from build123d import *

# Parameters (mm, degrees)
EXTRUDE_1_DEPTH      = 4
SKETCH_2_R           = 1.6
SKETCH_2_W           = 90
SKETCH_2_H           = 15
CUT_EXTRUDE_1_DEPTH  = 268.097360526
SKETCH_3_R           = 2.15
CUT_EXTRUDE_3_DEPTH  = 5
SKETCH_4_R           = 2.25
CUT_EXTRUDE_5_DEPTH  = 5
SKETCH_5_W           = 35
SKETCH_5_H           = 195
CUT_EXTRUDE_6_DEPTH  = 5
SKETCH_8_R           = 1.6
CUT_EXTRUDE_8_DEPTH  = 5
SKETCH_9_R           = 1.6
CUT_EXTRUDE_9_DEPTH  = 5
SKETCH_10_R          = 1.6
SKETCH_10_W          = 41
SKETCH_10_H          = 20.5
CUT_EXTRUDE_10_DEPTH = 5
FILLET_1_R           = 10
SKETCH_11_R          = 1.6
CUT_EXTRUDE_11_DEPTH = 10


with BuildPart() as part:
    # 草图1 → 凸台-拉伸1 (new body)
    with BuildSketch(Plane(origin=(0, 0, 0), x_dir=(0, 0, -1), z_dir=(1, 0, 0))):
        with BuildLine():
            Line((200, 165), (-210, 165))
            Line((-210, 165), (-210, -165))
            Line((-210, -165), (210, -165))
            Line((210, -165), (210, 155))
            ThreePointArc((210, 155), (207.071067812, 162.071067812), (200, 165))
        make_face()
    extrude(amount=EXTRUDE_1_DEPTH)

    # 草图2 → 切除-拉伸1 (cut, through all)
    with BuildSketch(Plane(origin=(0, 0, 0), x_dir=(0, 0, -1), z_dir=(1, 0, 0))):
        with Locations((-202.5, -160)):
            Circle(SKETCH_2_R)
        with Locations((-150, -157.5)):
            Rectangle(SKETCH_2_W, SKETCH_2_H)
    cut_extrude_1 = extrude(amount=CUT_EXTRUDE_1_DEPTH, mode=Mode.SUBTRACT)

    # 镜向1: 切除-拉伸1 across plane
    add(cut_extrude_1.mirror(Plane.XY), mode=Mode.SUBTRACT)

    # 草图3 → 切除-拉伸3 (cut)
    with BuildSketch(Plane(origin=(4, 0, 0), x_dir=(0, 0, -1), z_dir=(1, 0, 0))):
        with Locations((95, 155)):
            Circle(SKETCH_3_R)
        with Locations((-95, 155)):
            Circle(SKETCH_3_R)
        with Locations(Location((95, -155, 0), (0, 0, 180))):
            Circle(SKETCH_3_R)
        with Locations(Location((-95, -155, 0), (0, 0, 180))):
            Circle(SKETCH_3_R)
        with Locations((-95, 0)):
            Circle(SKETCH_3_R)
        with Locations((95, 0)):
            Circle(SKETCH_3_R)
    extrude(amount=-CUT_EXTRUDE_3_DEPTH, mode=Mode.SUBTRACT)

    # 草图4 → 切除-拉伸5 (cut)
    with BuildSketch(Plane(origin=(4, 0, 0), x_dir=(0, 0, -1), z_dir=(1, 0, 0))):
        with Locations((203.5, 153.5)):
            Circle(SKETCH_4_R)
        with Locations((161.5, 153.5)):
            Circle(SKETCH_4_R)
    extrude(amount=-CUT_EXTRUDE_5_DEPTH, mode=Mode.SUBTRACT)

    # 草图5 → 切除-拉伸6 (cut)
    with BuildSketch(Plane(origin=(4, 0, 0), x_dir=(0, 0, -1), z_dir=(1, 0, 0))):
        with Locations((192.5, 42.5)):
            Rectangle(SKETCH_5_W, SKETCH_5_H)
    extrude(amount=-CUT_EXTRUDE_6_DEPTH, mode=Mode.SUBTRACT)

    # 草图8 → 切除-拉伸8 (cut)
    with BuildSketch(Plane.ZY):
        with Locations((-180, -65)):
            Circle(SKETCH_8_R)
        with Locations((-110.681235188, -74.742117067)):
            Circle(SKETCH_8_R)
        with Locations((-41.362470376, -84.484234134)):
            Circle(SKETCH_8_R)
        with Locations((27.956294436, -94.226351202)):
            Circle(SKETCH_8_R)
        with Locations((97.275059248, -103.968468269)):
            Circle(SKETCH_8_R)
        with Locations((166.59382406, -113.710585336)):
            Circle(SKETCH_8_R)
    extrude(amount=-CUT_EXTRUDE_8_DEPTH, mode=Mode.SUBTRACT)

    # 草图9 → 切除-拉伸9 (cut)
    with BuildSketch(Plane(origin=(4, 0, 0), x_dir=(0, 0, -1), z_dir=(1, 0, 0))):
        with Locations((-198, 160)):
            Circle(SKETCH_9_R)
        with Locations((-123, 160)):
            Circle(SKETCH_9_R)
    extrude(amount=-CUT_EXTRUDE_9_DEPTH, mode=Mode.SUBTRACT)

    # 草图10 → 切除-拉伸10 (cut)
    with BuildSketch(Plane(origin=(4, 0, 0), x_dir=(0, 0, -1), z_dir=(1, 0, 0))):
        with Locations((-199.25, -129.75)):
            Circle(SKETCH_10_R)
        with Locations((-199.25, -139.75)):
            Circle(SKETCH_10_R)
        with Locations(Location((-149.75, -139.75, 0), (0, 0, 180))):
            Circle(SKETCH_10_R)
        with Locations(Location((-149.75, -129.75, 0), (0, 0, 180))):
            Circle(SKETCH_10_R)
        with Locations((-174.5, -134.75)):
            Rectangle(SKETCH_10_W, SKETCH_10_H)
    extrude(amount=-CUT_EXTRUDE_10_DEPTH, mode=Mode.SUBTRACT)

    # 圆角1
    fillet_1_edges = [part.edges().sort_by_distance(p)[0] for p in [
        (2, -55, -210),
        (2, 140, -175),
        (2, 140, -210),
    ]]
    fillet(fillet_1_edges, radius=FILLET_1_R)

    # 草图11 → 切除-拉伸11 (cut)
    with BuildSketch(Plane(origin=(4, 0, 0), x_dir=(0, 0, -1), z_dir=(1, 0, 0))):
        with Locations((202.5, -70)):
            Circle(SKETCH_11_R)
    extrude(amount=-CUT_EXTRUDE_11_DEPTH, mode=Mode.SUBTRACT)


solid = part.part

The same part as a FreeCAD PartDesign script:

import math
import FreeCAD as App
import Part
import Sketcher
from FreeCAD import Vector


def edges_at(feature, points):
    """Names of the edges that pass closest to the given points."""
    edges = feature.Shape.Edges
    near = lambda p: min(range(len(edges)), key=lambda i: edges[i].distToShape(Part.Vertex(*p))[0])
    return sorted({f"Edge{near(p) + 1}" for p in points})


def add_polygon(sketch, points):
    """Adds a closed chain of lines whose ends are joined by coincident constraints."""
    first, n = sketch.GeometryCount, len(points)
    for a, b in zip(points, points[1:] + points[:1]):
        sketch.addGeometry(Part.LineSegment(App.Vector(*a, 0), App.Vector(*b, 0)), False)
    for i in range(n):
        sketch.addConstraint(Sketcher.Constraint("Coincident", first + i, 2, first + (i + 1) % n, 1))

doc = App.newDocument("Part")
body = doc.addObject("PartDesign::Body", "Body")

# Sketch on YZ plane
sketch1 = body.newObject("Sketcher::SketchObject", "Sketch")
sketch1.AttachmentSupport = (doc.getObject("YZ_Plane"), [""])
sketch1.MapMode = "FlatFace"
sketch1.addGeometry([
    Part.LineSegment(Vector(165, -200, 0), Vector(165, 210, 0)),  # 0
    Part.LineSegment(Vector(165, 210, 0), Vector(-165, 210, 0)),  # 1
    Part.LineSegment(Vector(-165, 210, 0), Vector(-165, -210, 0)),  # 2
    Part.LineSegment(Vector(-165, -210, 0), Vector(155, -210, 0)),  # 3
    Part.ArcOfCircle(Part.Circle(Vector(155, -200, 0), Vector(0, 0, 1), 10), math.radians(-90), math.radians(0)),  # 4
], False)
sketch1.addConstraint([
    Sketcher.Constraint("Coincident", 0, 2, 1, 1),
    Sketcher.Constraint("Coincident", 1, 2, 2, 1),
    Sketcher.Constraint("Coincident", 2, 2, 3, 1),
    Sketcher.Constraint("Tangent", 3, 2, 4, 1),
    Sketcher.Constraint("Tangent", 4, 2, 0, 1),
    Sketcher.Constraint("Vertical", 0),
    Sketcher.Constraint("Horizontal", 1),
    Sketcher.Constraint("Vertical", 2),
    Sketcher.Constraint("Horizontal", 3),
    Sketcher.Constraint("Symmetric", 0, 2, 2, 2, -1, 1),
    Sketcher.Constraint("Radius", 4, 10.0),
    Sketcher.Constraint("DistanceX", 1, 2, 1, 1, 330.0),
    Sketcher.Constraint("DistanceY", 0, 1, 0, 2, 410.0),
])
pad1 = body.newObject("PartDesign::Pad", "Pad")
pad1.Profile = sketch1
pad1.Length = 4

# Sketch on YZ plane
sketch2 = body.newObject("Sketcher::SketchObject", "Sketch001")
sketch2.AttachmentSupport = (doc.getObject("YZ_Plane"), [""])
sketch2.MapMode = "FlatFace"
sketch2.addGeometry(Part.Circle(Vector(-160, 202.5, 0), Vector(0, 0, 1), 1.6), False)  # 0
add_polygon(sketch2, [(-150, 195), (-165, 195), (-165, 105), (-150, 105)])  # lines 1-4
sketch2.addConstraint([
    Sketcher.Constraint("Horizontal", 1),
    Sketcher.Constraint("Vertical", 2),
    Sketcher.Constraint("Horizontal", 3),
    Sketcher.Constraint("Vertical", 4),
    Sketcher.Constraint("Diameter", 0, 3.2),
    Sketcher.Constraint("DistanceX", 1, 2, 1, 1, 15.0),
    Sketcher.Constraint("DistanceY", 2, 2, 2, 1, 90.0),
    Sketcher.Constraint("DistanceX", 0, 3, -1, 1, 160.0),
    Sketcher.Constraint("DistanceX", 1, 2, -1, 1, 165.0),
    Sketcher.Constraint("DistanceY", -1, 1, 1, 2, 195.0),
    Sketcher.Constraint("DistanceY", -1, 1, 0, 3, 202.5),
])
pocket1 = body.newObject("PartDesign::Pocket", "Pocket")
pocket1.Profile = sketch2
pocket1.Type = "ThroughAll"
pocket1.Reversed = True
doc.recompute()

mirrored = body.newObject("PartDesign::Mirrored", "Mirrored")
mirrored.Originals = [pocket1]
mirrored.MirrorPlane = (doc.getObject("XY_Plane"), [""])
body.Tip = mirrored

# Sketch on YZ plane
sketch3 = body.newObject("Sketcher::SketchObject", "Sketch002")
sketch3.AttachmentSupport = (doc.getObject("YZ_Plane"), [""])
sketch3.MapMode = "FlatFace"
sketch3.AttachmentOffset = App.Placement(Vector(0, 0, 4), App.Rotation())
sketch3.addGeometry([
    Part.Circle(Vector(155, -95, 0), Vector(0, 0, 1), 2.15),  # 0
    Part.Circle(Vector(155, 95, 0), Vector(0, 0, 1), 2.15),  # 1
    Part.Circle(Vector(-155, -95, 0), Vector(0, 0, 1), 2.15),  # 2
    Part.Circle(Vector(-155, 95, 0), Vector(0, 0, 1), 2.15),  # 3
    Part.Circle(Vector(0, 95, 0), Vector(0, 0, 1), 2.15),  # 4
    Part.Circle(Vector(0, -95, 0), Vector(0, 0, 1), 2.15),  # 5
], False)
sketch3.addConstraint([
    Sketcher.Constraint("Equal", 0, 1),
    Sketcher.Constraint("Equal", 1, 2),
    Sketcher.Constraint("Equal", 2, 3),
    Sketcher.Constraint("Equal", 3, 4),
    Sketcher.Constraint("Equal", 4, 5),
    Sketcher.Constraint("Symmetric", 1, 3, 2, 3, -1, 1),
    Sketcher.Constraint("Symmetric", 0, 3, 3, 3, -1, 1),
    Sketcher.Constraint("Symmetric", 4, 3, 5, 3, -1, 1),
    Sketcher.Constraint("Symmetric", 0, 3, 2, 3, -2),
    Sketcher.Constraint("PointOnObject", 4, 3, -2),
    Sketcher.Constraint("Horizontal", 3, 3, 4, 3),
    Sketcher.Constraint("Diameter", 0, 4.3),
    Sketcher.Constraint("DistanceX", -1, 1, 0, 3, 155.0),
    Sketcher.Constraint("DistanceY", 0, 3, -1, 1, 95.0),
])
pocket2 = body.newObject("PartDesign::Pocket", "Pocket001")
pocket2.Profile = sketch3
pocket2.Length = 5

# Sketch on YZ plane
sketch4 = body.newObject("Sketcher::SketchObject", "Sketch003")
sketch4.AttachmentSupport = (doc.getObject("YZ_Plane"), [""])
sketch4.MapMode = "FlatFace"
sketch4.AttachmentOffset = App.Placement(Vector(0, 0, 4), App.Rotation())
sketch4.addGeometry([
    Part.Circle(Vector(153.5, -203.5, 0), Vector(0, 0, 1), 2.25),
    Part.Circle(Vector(153.5, -161.5, 0), Vector(0, 0, 1), 2.25),
], False)
sketch4.addConstraint([
    Sketcher.Constraint("Equal", 0, 1),
    Sketcher.Constraint("Vertical", 0, 3, 1, 3),
    Sketcher.Constraint("Diameter", 0, 4.5),
    Sketcher.Constraint("DistanceY", 0, 3, 1, 3, 42.0),
    Sketcher.Constraint("DistanceX", -1, 1, 0, 3, 153.5),
    Sketcher.Constraint("DistanceY", 0, 3, -1, 1, 203.5),
])
pocket3 = body.newObject("PartDesign::Pocket", "Pocket002")
pocket3.Profile = sketch4
pocket3.Length = 5

# Sketch on YZ plane
sketch5 = body.newObject("Sketcher::SketchObject", "Sketch004")
sketch5.AttachmentSupport = (doc.getObject("YZ_Plane"), [""])
sketch5.MapMode = "FlatFace"
sketch5.AttachmentOffset = App.Placement(Vector(0, 0, 4), App.Rotation())
add_polygon(sketch5, [(140, -175), (-55, -175), (-55, -210), (140, -210)])  # lines 0-3
sketch5.addConstraint([
    Sketcher.Constraint("Horizontal", 0),
    Sketcher.Constraint("Vertical", 1),
    Sketcher.Constraint("Horizontal", 2),
    Sketcher.Constraint("Vertical", 3),
    Sketcher.Constraint("DistanceX", 0, 2, 0, 1, 195.0),
    Sketcher.Constraint("DistanceY", 1, 2, 1, 1, 35.0),
    Sketcher.Constraint("DistanceX", 0, 2, -1, 1, 55.0),
    Sketcher.Constraint("DistanceY", 0, 2, -1, 1, 175.0),
])
pocket4 = body.newObject("PartDesign::Pocket", "Pocket003")
pocket4.Profile = sketch5
pocket4.Length = 5

# Sketch on YZ plane
sketch6 = body.newObject("Sketcher::SketchObject", "Sketch005")
sketch6.AttachmentSupport = (doc.getObject("YZ_Plane"), [""])
sketch6.MapMode = "FlatFace"
sketch6.addGeometry([
    Part.Circle(Vector(-65, -180, 0), Vector(0, 0, 1), 1.6),  # 0
    Part.Circle(Vector(-74.742117, -110.681235, 0), Vector(0, 0, 1), 1.6),  # 1
    Part.Circle(Vector(-84.484234, -41.36247, 0), Vector(0, 0, 1), 1.6),  # 2
    Part.Circle(Vector(-94.226351, 27.956294, 0), Vector(0, 0, 1), 1.6),  # 3
    Part.Circle(Vector(-103.968468, 97.275059, 0), Vector(0, 0, 1), 1.6),  # 4
    Part.Circle(Vector(-113.710585, 166.593824, 0), Vector(0, 0, 1), 1.6),  # 5
], False)
sketch6.addConstraint([
    Sketcher.Constraint("Equal", 0, 1),
    Sketcher.Constraint("Equal", 1, 2),
    Sketcher.Constraint("Equal", 2, 3),
    Sketcher.Constraint("Equal", 3, 4),
    Sketcher.Constraint("Equal", 4, 5),
    Sketcher.Constraint("Diameter", 0, 3.2),
    Sketcher.Constraint("DistanceX", 0, 3, -1, 1, 65.0),
    Sketcher.Constraint("DistanceY", 0, 3, -1, 1, 180.0),
    Sketcher.Constraint("DistanceY", 2, 3, -1, 1, 41.36247),
    Sketcher.Constraint("DistanceX", 3, 3, -1, 1, 94.226351),
    Sketcher.Constraint("DistanceX", 4, 3, -1, 1, 103.968468),
    Sketcher.Constraint("DistanceY", -1, 1, 4, 3, 97.275059),
    Sketcher.Constraint("DistanceY", 1, 3, 3, 3, 138.63753),
    Sketcher.Constraint("DistanceX", 4, 3, 1, 3, 29.226351),
    Sketcher.Constraint("DistanceY", 3, 3, 5, 3, 138.63753),
    Sketcher.Constraint("DistanceX", 5, 3, 2, 3, 29.226351),
    Sketcher.Constraint("DistanceX", 5, 3, 1, 3, 38.968468),
    Sketcher.Constraint("DistanceY", 1, 3, -1, 1, 110.681235),
])
pocket5 = body.newObject("PartDesign::Pocket", "Pocket004")
pocket5.Profile = sketch6
pocket5.Length = 5
pocket5.Reversed = True

# Sketch on YZ plane
sketch7 = body.newObject("Sketcher::SketchObject", "Sketch006")
sketch7.AttachmentSupport = (doc.getObject("YZ_Plane"), [""])
sketch7.MapMode = "FlatFace"
sketch7.AttachmentOffset = App.Placement(Vector(0, 0, 4), App.Rotation())
sketch7.addGeometry([
    Part.Circle(Vector(160, 198, 0), Vector(0, 0, 1), 1.6),
    Part.Circle(Vector(160, 123, 0), Vector(0, 0, 1), 1.6),
], False)
sketch7.addConstraint([
    Sketcher.Constraint("Equal", 0, 1),
    Sketcher.Constraint("Vertical", 0, 3, 1, 3),
    Sketcher.Constraint("Diameter", 0, 3.2),
    Sketcher.Constraint("DistanceX", -1, 1, 0, 3, 160.0),
    Sketcher.Constraint("DistanceY", -1, 1, 0, 3, 198.0),
    Sketcher.Constraint("DistanceY", -1, 1, 1, 3, 123.0),
])
pocket6 = body.newObject("PartDesign::Pocket", "Pocket005")
pocket6.Profile = sketch7
pocket6.Length = 5

# Sketch on YZ plane
sketch8 = body.newObject("Sketcher::SketchObject", "Sketch007")
sketch8.AttachmentSupport = (doc.getObject("YZ_Plane"), [""])
sketch8.MapMode = "FlatFace"
sketch8.AttachmentOffset = App.Placement(Vector(0, 0, 4), App.Rotation())
sketch8.addGeometry(Part.Circle(Vector(-129.75, 199.25, 0), Vector(0, 0, 1), 1.6), False)  # 0
sketch8.addGeometry(Part.Circle(Vector(-139.75, 199.25, 0), Vector(0, 0, 1), 1.6), False)  # 1
sketch8.addGeometry(Part.Circle(Vector(-139.75, 149.75, 0), Vector(0, 0, 1), 1.6), False)  # 2
sketch8.addGeometry(Part.Circle(Vector(-129.75, 149.75, 0), Vector(0, 0, 1), 1.6), False)  # 3
add_polygon(sketch8, [(-124.5, 195), (-145, 195), (-145, 154), (-124.5, 154)])  # lines 4-7
sketch8.addConstraint([
    Sketcher.Constraint("Horizontal", 4),
    Sketcher.Constraint("Vertical", 5),
    Sketcher.Constraint("Horizontal", 6),
    Sketcher.Constraint("Vertical", 7),
    Sketcher.Constraint("Equal", 0, 1),
    Sketcher.Constraint("Equal", 1, 2),
    Sketcher.Constraint("Equal", 2, 3),
    Sketcher.Constraint("Horizontal", 0, 3, 1, 3),
    Sketcher.Constraint("Horizontal", 2, 3, 3, 3),
    Sketcher.Constraint("Vertical", 1, 3, 2, 3),
    Sketcher.Constraint("Vertical", 0, 3, 3, 3),
    Sketcher.Constraint("Diameter", 0, 3.2),
    Sketcher.Constraint("DistanceY", 5, 2, 5, 1, 41.0),
    Sketcher.Constraint("DistanceX", 4, 2, 4, 1, 20.5),
    Sketcher.Constraint("DistanceX", 4, 2, -1, 1, 145.0),
    Sketcher.Constraint("DistanceY", -1, 1, 4, 2, 195.0),
    Sketcher.Constraint("DistanceX", 1, 3, 0, 3, 10.0),
    Sketcher.Constraint("DistanceY", 2, 3, 1, 3, 49.5),
    Sketcher.Constraint("DistanceX", 0, 3, -1, 1, 129.75),
    Sketcher.Constraint("DistanceY", -1, 1, 0, 3, 199.25),
])
pocket7 = body.newObject("PartDesign::Pocket", "Pocket006")
pocket7.Profile = sketch8
pocket7.Length = 5
doc.recompute()

fillet = body.newObject("PartDesign::Fillet", "Fillet")
fillet.Base = (pocket7, edges_at(pocket7, [(2, -55, -210), (2, 140, -175), (2, 140, -210)]))
fillet.Radius = 10

# Sketch on YZ plane
sketch9 = body.newObject("Sketcher::SketchObject", "Sketch008")
sketch9.AttachmentSupport = (doc.getObject("YZ_Plane"), [""])
sketch9.MapMode = "FlatFace"
sketch9.AttachmentOffset = App.Placement(Vector(0, 0, 4), App.Rotation())
sketch9.addGeometry(Part.Circle(Vector(-70, -202.5, 0), Vector(0, 0, 1), 1.6), False)
sketch9.addConstraint([
    Sketcher.Constraint("Diameter", 0, 3.2),
    Sketcher.Constraint("DistanceX", 0, 3, -1, 1, 70.0),
    Sketcher.Constraint("DistanceY", 0, 3, -1, 1, 202.5),
])
pocket8 = body.newObject("PartDesign::Pocket", "Pocket007")
pocket8.Profile = sketch9
pocket8.Length = 10

doc.recompute()
